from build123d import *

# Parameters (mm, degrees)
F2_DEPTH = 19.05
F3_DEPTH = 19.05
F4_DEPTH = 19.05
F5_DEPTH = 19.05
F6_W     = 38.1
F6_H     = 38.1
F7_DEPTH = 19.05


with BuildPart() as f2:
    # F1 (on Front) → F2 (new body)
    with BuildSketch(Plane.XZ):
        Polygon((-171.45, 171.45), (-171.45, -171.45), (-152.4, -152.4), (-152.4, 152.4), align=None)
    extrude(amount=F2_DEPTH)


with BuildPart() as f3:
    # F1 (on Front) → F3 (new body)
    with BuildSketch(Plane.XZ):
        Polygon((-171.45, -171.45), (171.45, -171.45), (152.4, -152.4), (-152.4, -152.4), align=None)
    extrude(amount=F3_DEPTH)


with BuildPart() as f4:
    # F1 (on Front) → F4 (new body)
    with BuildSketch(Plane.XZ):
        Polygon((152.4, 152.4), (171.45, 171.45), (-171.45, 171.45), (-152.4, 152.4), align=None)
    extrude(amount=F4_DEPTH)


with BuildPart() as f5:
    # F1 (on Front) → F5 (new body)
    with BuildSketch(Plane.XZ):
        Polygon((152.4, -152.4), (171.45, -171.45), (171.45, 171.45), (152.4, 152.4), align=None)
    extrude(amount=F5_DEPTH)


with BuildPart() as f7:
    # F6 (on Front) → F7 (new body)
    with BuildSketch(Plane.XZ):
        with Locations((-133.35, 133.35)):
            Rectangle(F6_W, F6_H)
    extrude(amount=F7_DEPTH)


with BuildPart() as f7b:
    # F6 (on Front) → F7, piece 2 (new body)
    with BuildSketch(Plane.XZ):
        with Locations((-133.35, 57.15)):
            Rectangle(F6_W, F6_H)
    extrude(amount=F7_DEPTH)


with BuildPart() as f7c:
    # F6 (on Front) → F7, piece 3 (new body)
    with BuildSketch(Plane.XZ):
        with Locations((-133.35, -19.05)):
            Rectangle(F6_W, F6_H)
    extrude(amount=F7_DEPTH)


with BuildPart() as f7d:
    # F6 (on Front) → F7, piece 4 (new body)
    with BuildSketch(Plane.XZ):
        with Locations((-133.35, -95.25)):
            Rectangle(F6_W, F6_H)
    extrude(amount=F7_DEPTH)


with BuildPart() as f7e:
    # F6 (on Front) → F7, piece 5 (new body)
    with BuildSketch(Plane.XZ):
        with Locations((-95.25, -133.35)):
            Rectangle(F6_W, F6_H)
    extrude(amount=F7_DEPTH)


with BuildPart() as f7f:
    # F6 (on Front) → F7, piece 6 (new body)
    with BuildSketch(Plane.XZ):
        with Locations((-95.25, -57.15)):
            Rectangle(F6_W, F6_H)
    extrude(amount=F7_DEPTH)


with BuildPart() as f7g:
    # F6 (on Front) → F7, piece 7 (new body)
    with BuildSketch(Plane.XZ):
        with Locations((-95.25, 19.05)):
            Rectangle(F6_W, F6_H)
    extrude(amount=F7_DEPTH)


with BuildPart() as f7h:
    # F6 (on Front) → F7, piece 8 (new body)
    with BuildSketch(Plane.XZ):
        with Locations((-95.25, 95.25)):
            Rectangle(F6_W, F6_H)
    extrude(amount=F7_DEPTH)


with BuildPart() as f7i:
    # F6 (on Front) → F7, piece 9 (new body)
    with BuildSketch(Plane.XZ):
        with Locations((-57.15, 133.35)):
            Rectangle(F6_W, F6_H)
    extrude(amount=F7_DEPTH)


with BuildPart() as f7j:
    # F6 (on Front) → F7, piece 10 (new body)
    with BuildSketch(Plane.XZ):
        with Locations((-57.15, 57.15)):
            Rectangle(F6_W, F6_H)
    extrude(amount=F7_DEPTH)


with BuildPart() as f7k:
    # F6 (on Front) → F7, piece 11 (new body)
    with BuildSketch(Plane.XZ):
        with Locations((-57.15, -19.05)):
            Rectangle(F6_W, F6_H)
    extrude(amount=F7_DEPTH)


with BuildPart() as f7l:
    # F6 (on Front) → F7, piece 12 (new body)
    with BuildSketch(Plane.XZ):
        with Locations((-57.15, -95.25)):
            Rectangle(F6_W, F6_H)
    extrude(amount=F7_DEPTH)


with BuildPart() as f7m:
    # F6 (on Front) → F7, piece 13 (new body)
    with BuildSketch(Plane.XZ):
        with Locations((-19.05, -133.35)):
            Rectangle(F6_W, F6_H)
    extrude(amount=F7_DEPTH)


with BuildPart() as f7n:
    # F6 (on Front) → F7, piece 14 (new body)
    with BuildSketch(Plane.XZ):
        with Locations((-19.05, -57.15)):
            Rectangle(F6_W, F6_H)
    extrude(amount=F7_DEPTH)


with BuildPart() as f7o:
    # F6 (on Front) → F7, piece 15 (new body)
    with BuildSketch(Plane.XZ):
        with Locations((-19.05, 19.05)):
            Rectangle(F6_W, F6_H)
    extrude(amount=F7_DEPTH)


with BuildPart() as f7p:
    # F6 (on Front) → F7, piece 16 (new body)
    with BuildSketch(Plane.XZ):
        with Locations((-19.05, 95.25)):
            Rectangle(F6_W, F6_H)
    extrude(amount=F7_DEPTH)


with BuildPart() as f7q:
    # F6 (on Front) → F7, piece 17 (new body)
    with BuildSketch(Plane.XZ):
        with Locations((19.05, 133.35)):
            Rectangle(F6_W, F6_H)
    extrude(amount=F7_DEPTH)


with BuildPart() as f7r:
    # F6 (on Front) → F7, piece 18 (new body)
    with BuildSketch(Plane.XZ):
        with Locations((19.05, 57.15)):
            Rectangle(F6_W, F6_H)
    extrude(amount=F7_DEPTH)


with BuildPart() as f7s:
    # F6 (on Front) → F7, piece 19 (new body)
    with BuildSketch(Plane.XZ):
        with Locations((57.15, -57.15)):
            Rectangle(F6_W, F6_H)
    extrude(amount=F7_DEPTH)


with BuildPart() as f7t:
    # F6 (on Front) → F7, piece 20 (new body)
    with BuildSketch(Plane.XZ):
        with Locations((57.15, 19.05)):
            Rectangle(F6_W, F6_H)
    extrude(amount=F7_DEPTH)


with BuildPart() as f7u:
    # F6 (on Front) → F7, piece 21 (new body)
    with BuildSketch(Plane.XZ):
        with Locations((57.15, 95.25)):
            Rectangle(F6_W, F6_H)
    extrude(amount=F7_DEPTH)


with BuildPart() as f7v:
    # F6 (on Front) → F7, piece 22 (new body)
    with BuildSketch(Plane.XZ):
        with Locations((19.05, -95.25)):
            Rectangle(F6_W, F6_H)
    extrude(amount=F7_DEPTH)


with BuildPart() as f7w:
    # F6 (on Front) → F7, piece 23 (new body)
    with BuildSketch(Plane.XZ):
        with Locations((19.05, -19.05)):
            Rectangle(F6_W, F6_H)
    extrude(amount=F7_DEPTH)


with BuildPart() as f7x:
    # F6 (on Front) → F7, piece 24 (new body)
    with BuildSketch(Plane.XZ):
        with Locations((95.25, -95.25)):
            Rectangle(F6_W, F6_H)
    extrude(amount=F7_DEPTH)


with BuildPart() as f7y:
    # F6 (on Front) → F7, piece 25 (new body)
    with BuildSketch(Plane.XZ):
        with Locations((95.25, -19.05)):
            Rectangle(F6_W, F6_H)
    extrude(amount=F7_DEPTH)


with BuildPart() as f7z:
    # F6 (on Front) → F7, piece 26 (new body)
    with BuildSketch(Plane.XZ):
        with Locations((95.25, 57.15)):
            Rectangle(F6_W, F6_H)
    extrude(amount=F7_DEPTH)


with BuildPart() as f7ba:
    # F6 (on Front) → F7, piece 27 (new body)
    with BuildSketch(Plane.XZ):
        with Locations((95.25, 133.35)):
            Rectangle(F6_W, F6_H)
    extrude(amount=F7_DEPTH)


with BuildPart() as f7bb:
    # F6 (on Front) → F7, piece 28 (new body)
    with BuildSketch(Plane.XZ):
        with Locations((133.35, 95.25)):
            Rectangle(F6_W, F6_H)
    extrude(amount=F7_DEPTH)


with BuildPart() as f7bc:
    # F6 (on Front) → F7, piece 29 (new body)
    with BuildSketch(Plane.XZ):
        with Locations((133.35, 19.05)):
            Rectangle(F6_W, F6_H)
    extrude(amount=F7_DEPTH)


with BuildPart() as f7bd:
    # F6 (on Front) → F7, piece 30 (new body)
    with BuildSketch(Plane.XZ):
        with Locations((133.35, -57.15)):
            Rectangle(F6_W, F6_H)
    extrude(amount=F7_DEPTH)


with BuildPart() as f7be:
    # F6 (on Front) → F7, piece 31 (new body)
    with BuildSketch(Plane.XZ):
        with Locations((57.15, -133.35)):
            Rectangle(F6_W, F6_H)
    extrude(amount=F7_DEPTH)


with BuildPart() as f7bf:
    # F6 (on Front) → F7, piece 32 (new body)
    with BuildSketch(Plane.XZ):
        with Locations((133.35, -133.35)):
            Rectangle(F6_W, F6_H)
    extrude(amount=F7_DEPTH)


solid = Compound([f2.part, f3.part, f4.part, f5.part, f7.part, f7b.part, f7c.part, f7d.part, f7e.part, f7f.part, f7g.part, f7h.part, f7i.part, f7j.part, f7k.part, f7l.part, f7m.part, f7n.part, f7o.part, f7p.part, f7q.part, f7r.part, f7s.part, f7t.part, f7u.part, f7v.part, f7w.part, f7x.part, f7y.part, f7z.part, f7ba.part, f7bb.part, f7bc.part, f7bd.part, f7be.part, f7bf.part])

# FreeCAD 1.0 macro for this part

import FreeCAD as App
import Part
import Sketcher
Q = App.Units.Quantity

doc = App.newDocument("Part")
body = doc.addObject("PartDesign::Body", "Body")

sketch1 = body.newObject("Sketcher::SketchObject", "Sketch")
sketch1.AttachmentSupport = (doc.getObject("XZ_Plane"), [""])
sketch1.MapMode = "FlatFace"
sketch1.addGeometry([
    Part.LineSegment(App.Vector(-171, 171, 0), App.Vector(-171, -171, 0)),
    Part.LineSegment(App.Vector(-171, -171, 0), App.Vector(-152, -152, 0)),
    Part.LineSegment(App.Vector(-152, -152, 0), App.Vector(-152, 152, 0)),
    Part.LineSegment(App.Vector(-152, 152, 0), App.Vector(-171, 171, 0)),
], False)
sketch1.addConstraint([
    Sketcher.Constraint("Coincident", 0, 2, 1, 1),
    Sketcher.Constraint("Coincident", 1, 2, 2, 1),
    Sketcher.Constraint("Coincident", 2, 2, 3, 1),
    Sketcher.Constraint("Coincident", 3, 2, 0, 1),
    Sketcher.Constraint("Vertical", 0),
    Sketcher.Constraint("Vertical", 2),
    Sketcher.Constraint("Perpendicular", 1, 3),
    Sketcher.Constraint("Equal", 1, 3),
    Sketcher.Constraint("DistanceY", 2, 1, 2, 2, Q("12 in")),
    Sketcher.Constraint("DistanceY", 0, 2, 0, 1, Q("13.5 in")),
    Sketcher.Constraint("DistanceX", 1, 2, -1, 1, Q("6 in")),
    Sketcher.Constraint("DistanceY", 1, 2, -1, 1, Q("6 in")),
])
pad1 = body.newObject("PartDesign::Pad", "Pad")
pad1.Profile = sketch1
pad1.Length = Q("0.75 in")
body2 = doc.addObject("PartDesign::Body", "Body001")

sketch2 = body2.newObject("Sketcher::SketchObject", "Sketch001")
sketch2.AttachmentSupport = (doc.getObject("XZ_Plane001"), [""])
sketch2.MapMode = "FlatFace"
sketch2.addGeometry([
    Part.LineSegment(App.Vector(-171, -171, 0), App.Vector(171, -171, 0)),
    Part.LineSegment(App.Vector(171, -171, 0), App.Vector(152, -152, 0)),
    Part.LineSegment(App.Vector(152, -152, 0), App.Vector(-152, -152, 0)),
    Part.LineSegment(App.Vector(-152, -152, 0), App.Vector(-171, -171, 0)),
], False)
sketch2.addConstraint([
    Sketcher.Constraint("Coincident", 0, 2, 1, 1),
    Sketcher.Constraint("Coincident", 1, 2, 2, 1),
    Sketcher.Constraint("Coincident", 2, 2, 3, 1),
    Sketcher.Constraint("Coincident", 3, 2, 0, 1),
    Sketcher.Constraint("Horizontal", 0),
    Sketcher.Constraint("Horizontal", 2),
    Sketcher.Constraint("Perpendicular", 1, 3),
    Sketcher.Constraint("Equal", 1, 3),
    Sketcher.Constraint("DistanceX", 2, 2, 2, 1, Q("12 in")),
    Sketcher.Constraint("DistanceX", 0, 1, 0, 2, Q("13.5 in")),
    Sketcher.Constraint("DistanceX", -1, 1, 1, 2, Q("6 in")),
    Sketcher.Constraint("DistanceY", 1, 2, -1, 1, Q("6 in")),
])
pad2 = body2.newObject("PartDesign::Pad", "Pad001")
pad2.Profile = sketch2
pad2.Length = Q("0.75 in")
body3 = doc.addObject("PartDesign::Body", "Body002")

sketch3 = body3.newObject("Sketcher::SketchObject", "Sketch002")
sketch3.AttachmentSupport = (doc.getObject("XZ_Plane002"), [""])
sketch3.MapMode = "FlatFace"
sketch3.addGeometry([
    Part.LineSegment(App.Vector(152, 152, 0), App.Vector(171, 171, 0)),
    Part.LineSegment(App.Vector(171, 171, 0), App.Vector(-171, 171, 0)),
    Part.LineSegment(App.Vector(-171, 171, 0), App.Vector(-152, 152, 0)),
    Part.LineSegment(App.Vector(-152, 152, 0), App.Vector(152, 152, 0)),
], False)
sketch3.addConstraint([
    Sketcher.Constraint("Coincident", 0, 2, 1, 1),
    Sketcher.Constraint("Coincident", 1, 2, 2, 1),
    Sketcher.Constraint("Coincident", 2, 2, 3, 1),
    Sketcher.Constraint("Coincident", 3, 2, 0, 1),
    Sketcher.Constraint("Horizontal", 1),
    Sketcher.Constraint("Horizontal", 3),
    Sketcher.Constraint("Perpendicular", 0, 2),
    Sketcher.Constraint("Equal", 0, 2),
    Sketcher.Constraint("DistanceX", 3, 1, 3, 2, Q("12 in")),
    Sketcher.Constraint("DistanceX", 1, 2, 1, 1, Q("13.5 in")),
    Sketcher.Constraint("DistanceX", 2, 2, -1, 1, Q("6 in")),
    Sketcher.Constraint("DistanceY", -1, 1, 2, 2, Q("6 in")),
])
pad3 = body3.newObject("PartDesign::Pad", "Pad002")
pad3.Profile = sketch3
pad3.Length = Q("0.75 in")
body4 = doc.addObject("PartDesign::Body", "Body003")

sketch4 = body4.newObject("Sketcher::SketchObject", "Sketch003")
sketch4.AttachmentSupport = (doc.getObject("XZ_Plane003"), [""])
sketch4.MapMode = "FlatFace"
sketch4.addGeometry([
    Part.LineSegment(App.Vector(152, -152, 0), App.Vector(171, -171, 0)),
    Part.LineSegment(App.Vector(171, -171, 0), App.Vector(171, 171, 0)),
    Part.LineSegment(App.Vector(171, 171, 0), App.Vector(152, 152, 0)),
    Part.LineSegment(App.Vector(152, 152, 0), App.Vector(152, -152, 0)),
], False)
sketch4.addConstraint([
    Sketcher.Constraint("Coincident", 0, 2, 1, 1),
    Sketcher.Constraint("Coincident", 1, 2, 2, 1),
    Sketcher.Constraint("Coincident", 2, 2, 3, 1),
    Sketcher.Constraint("Coincident", 3, 2, 0, 1),
    Sketcher.Constraint("Vertical", 1),
    Sketcher.Constraint("Vertical", 3),
    Sketcher.Constraint("Perpendicular", 0, 2),
    Sketcher.Constraint("Equal", 0, 2),
    Sketcher.Constraint("DistanceY", 3, 2, 3, 1, Q("12 in")),
    Sketcher.Constraint("DistanceY", 1, 1, 1, 2, Q("13.5 in")),
    Sketcher.Constraint("DistanceX", -1, 1, 2, 2, Q("6 in")),
    Sketcher.Constraint("DistanceY", -1, 1, 2, 2, Q("6 in")),
])
pad4 = body4.newObject("PartDesign::Pad", "Pad003")
pad4.Profile = sketch4
pad4.Length = Q("0.75 in")
body5 = doc.addObject("PartDesign::Body", "Body004")

sketch5 = body5.newObject("Sketcher::SketchObject", "Sketch004")
sketch5.AttachmentSupport = (doc.getObject("XZ_Plane004"), [""])
sketch5.MapMode = "FlatFace"
sketch5.addGeometry([
    Part.LineSegment(App.Vector(-152, 152, 0), App.Vector(-152, 114, 0)),
    Part.LineSegment(App.Vector(-152, 114, 0), App.Vector(-114, 114, 0)),
    Part.LineSegment(App.Vector(-114, 114, 0), App.Vector(-114, 152, 0)),
    Part.LineSegment(App.Vector(-114, 152, 0), App.Vector(-152, 152, 0)),
], False)
sketch5.addConstraint([
    Sketcher.Constraint("Coincident", 0, 2, 1, 1),
    Sketcher.Constraint("Coincident", 1, 2, 2, 1),
    Sketcher.Constraint("Coincident", 2, 2, 3, 1),
    Sketcher.Constraint("Coincident", 3, 2, 0, 1),
    Sketcher.Constraint("Vertical", 0),
    Sketcher.Constraint("Horizontal", 1),
    Sketcher.Constraint("Vertical", 2),
    Sketcher.Constraint("Horizontal", 3),
    Sketcher.Constraint("Equal", 3, 0),
    Sketcher.Constraint("DistanceX", 1, 1, 1, 2, Q("1.5 in")),
    Sketcher.Constraint("DistanceX", 0, 2, -1, 1, Q("6 in")),
    Sketcher.Constraint("DistanceY", -1, 1, 2, 2, Q("6 in")),
])
pad5 = body5.newObject("PartDesign::Pad", "Pad004")
pad5.Profile = sketch5
pad5.Length = Q("0.75 in")
body6 = doc.addObject("PartDesign::Body", "Body005")

sketch6 = body6.newObject("Sketcher::SketchObject", "Sketch005")
sketch6.AttachmentSupport = (doc.getObject("XZ_Plane005"), [""])
sketch6.MapMode = "FlatFace"
sketch6.addGeometry([
    Part.LineSegment(App.Vector(-152, 76, 0), App.Vector(-152, 38, 0)),
    Part.LineSegment(App.Vector(-152, 38, 0), App.Vector(-114, 38, 0)),
    Part.LineSegment(App.Vector(-114, 38, 0), App.Vector(-114, 76, 0)),
    Part.LineSegment(App.Vector(-114, 76, 0), App.Vector(-152, 76, 0)),
], False)
sketch6.addConstraint([
    Sketcher.Constraint("Coincident", 0, 2, 1, 1),
    Sketcher.Constraint("Coincident", 1, 2, 2, 1),
    Sketcher.Constraint("Coincident", 2, 2, 3, 1),
    Sketcher.Constraint("Coincident", 3, 2, 0, 1),
    Sketcher.Constraint("Vertical", 0),
    Sketcher.Constraint("Horizontal", 1),
    Sketcher.Constraint("Vertical", 2),
    Sketcher.Constraint("Horizontal", 3),
    Sketcher.Constraint("Equal", 3, 0),
    Sketcher.Constraint("DistanceX", 1, 1, 1, 2, Q("1.5 in")),
    Sketcher.Constraint("DistanceX", 0, 2, -1, 1, Q("6 in")),
    Sketcher.Constraint("DistanceY", -1, 1, 2, 2, Q("3 in")),
])
pad6 = body6.newObject("PartDesign::Pad", "Pad005")
pad6.Profile = sketch6
pad6.Length = Q("0.75 in")
body7 = doc.addObject("PartDesign::Body", "Body006")

sketch7 = body7.newObject("Sketcher::SketchObject", "Sketch006")
sketch7.AttachmentSupport = (doc.getObject("XZ_Plane006"), [""])
sketch7.MapMode = "FlatFace"
sketch7.addGeometry([
    Part.LineSegment(App.Vector(-152, 0, 0), App.Vector(-152, -38, 0)),
    Part.LineSegment(App.Vector(-152, -38, 0), App.Vector(-114, -38, 0)),
    Part.LineSegment(App.Vector(-114, -38, 0), App.Vector(-114, 0, 0)),
    Part.LineSegment(App.Vector(-114, 0, 0), App.Vector(-152, 0, 0)),
], False)
sketch7.addConstraint([
    Sketcher.Constraint("Coincident", 0, 2, 1, 1),
    Sketcher.Constraint("Coincident", 1, 2, 2, 1),
    Sketcher.Constraint("Coincident", 2, 2, 3, 1),
    Sketcher.Constraint("Coincident", 3, 2, 0, 1),
    Sketcher.Constraint("Vertical", 0),
    Sketcher.Constraint("Horizontal", 1),
    Sketcher.Constraint("Vertical", 2),
    Sketcher.Constraint("Horizontal", 3),
    Sketcher.Constraint("PointOnObject", 2, 2, -1),
    Sketcher.Constraint("Equal", 3, 0),
    Sketcher.Constraint("DistanceX", 1, 1, 1, 2, Q("1.5 in")),
    Sketcher.Constraint("DistanceX", 0, 2, -1, 1, Q("6 in")),
])
pad7 = body7.newObject("PartDesign::Pad", "Pad006")
pad7.Profile = sketch7
pad7.Length = Q("0.75 in")
body8 = doc.addObject("PartDesign::Body", "Body007")

sketch8 = body8.newObject("Sketcher::SketchObject", "Sketch007")
sketch8.AttachmentSupport = (doc.getObject("XZ_Plane007"), [""])
sketch8.MapMode = "FlatFace"
sketch8.addGeometry([
    Part.LineSegment(App.Vector(-152, -76, 0), App.Vector(-152, -114, 0)),
    Part.LineSegment(App.Vector(-152, -114, 0), App.Vector(-114, -114, 0)),
    Part.LineSegment(App.Vector(-114, -114, 0), App.Vector(-114, -76, 0)),
    Part.LineSegment(App.Vector(-114, -76, 0), App.Vector(-152, -76, 0)),
], False)
sketch8.addConstraint([
    Sketcher.Constraint("Coincident", 0, 2, 1, 1),
    Sketcher.Constraint("Coincident", 1, 2, 2, 1),
    Sketcher.Constraint("Coincident", 2, 2, 3, 1),
    Sketcher.Constraint("Coincident", 3, 2, 0, 1),
    Sketcher.Constraint("Vertical", 0),
    Sketcher.Constraint("Horizontal", 1),
    Sketcher.Constraint("Vertical", 2),
    Sketcher.Constraint("Horizontal", 3),
    Sketcher.Constraint("Equal", 3, 0),
    Sketcher.Constraint("DistanceX", 1, 1, 1, 2, Q("1.5 in")),
    Sketcher.Constraint("DistanceX", 0, 2, -1, 1, Q("6 in")),
    Sketcher.Constraint("DistanceY", 2, 2, -1, 1, Q("3 in")),
])
pad8 = body8.newObject("PartDesign::Pad", "Pad007")
pad8.Profile = sketch8
pad8.Length = Q("0.75 in")
body9 = doc.addObject("PartDesign::Body", "Body008")

sketch9 = body9.newObject("Sketcher::SketchObject", "Sketch008")
sketch9.AttachmentSupport = (doc.getObject("XZ_Plane008"), [""])
sketch9.MapMode = "FlatFace"
sketch9.addGeometry([
    Part.LineSegment(App.Vector(-114, -114, 0), App.Vector(-114, -152, 0)),
    Part.LineSegment(App.Vector(-114, -152, 0), App.Vector(-76, -152, 0)),
    Part.LineSegment(App.Vector(-76, -152, 0), App.Vector(-76, -114, 0)),
    Part.LineSegment(App.Vector(-76, -114, 0), App.Vector(-114, -114, 0)),
], False)
sketch9.addConstraint([
    Sketcher.Constraint("Coincident", 0, 2, 1, 1),
    Sketcher.Constraint("Coincident", 1, 2, 2, 1),
    Sketcher.Constraint("Coincident", 2, 2, 3, 1),
    Sketcher.Constraint("Coincident", 3, 2, 0, 1),
    Sketcher.Constraint("Vertical", 0),
    Sketcher.Constraint("Horizontal", 1),
    Sketcher.Constraint("Vertical", 2),
    Sketcher.Constraint("Horizontal", 3),
    Sketcher.Constraint("Equal", 3, 0),
    Sketcher.Constraint("DistanceX", 1, 1, 1, 2, Q("1.5 in")),
    Sketcher.Constraint("DistanceY", 0, 2, -1, 1, Q("6 in")),
    Sketcher.Constraint("DistanceX", 1, 2, -1, 1, Q("3 in")),
])
pad9 = body9.newObject("PartDesign::Pad", "Pad008")
pad9.Profile = sketch9
pad9.Length = Q("0.75 in")
body10 = doc.addObject("PartDesign::Body", "Body009")

sketch10 = body10.newObject("Sketcher::SketchObject", "Sketch009")
sketch10.AttachmentSupport = (doc.getObject("XZ_Plane009"), [""])
sketch10.MapMode = "FlatFace"
sketch10.addGeometry([
    Part.LineSegment(App.Vector(-114, -38, 0), App.Vector(-114, -76, 0)),
    Part.LineSegment(App.Vector(-114, -76, 0), App.Vector(-76, -76, 0)),
    Part.LineSegment(App.Vector(-76, -76, 0), App.Vector(-76, -38, 0)),
    Part.LineSegment(App.Vector(-76, -38, 0), App.Vector(-114, -38, 0)),
], False)
sketch10.addConstraint([
    Sketcher.Constraint("Coincident", 0, 2, 1, 1),
    Sketcher.Constraint("Coincident", 1, 2, 2, 1),
    Sketcher.Constraint("Coincident", 2, 2, 3, 1),
    Sketcher.Constraint("Coincident", 3, 2, 0, 1),
    Sketcher.Constraint("Vertical", 0),
    Sketcher.Constraint("Horizontal", 1),
    Sketcher.Constraint("Vertical", 2),
    Sketcher.Constraint("Horizontal", 3),
    Sketcher.Constraint("Equal", 3, 0),
    Sketcher.Constraint("DistanceX", 1, 1, 1, 2, Q("1.5 in")),
    Sketcher.Constraint("DistanceY", 0, 2, -1, 1, Q("3 in")),
    Sketcher.Constraint("DistanceX", 1, 2, -1, 1, Q("3 in")),
])
pad10 = body10.newObject("PartDesign::Pad", "Pad009")
pad10.Profile = sketch10
pad10.Length = Q("0.75 in")
body11 = doc.addObject("PartDesign::Body", "Body010")

sketch11 = body11.newObject("Sketcher::SketchObject", "Sketch010")
sketch11.AttachmentSupport = (doc.getObject("XZ_Plane010"), [""])
sketch11.MapMode = "FlatFace"
sketch11.addGeometry([
    Part.LineSegment(App.Vector(-114, 38, 0), App.Vector(-114, 0, 0)),
    Part.LineSegment(App.Vector(-114, 0, 0), App.Vector(-76, 0, 0)),
    Part.LineSegment(App.Vector(-76, 0, 0), App.Vector(-76, 38, 0)),
    Part.LineSegment(App.Vector(-76, 38, 0), App.Vector(-114, 38, 0)),
], False)
sketch11.addConstraint([
    Sketcher.Constraint("Coincident", 0, 2, 1, 1),
    Sketcher.Constraint("Coincident", 1, 2, 2, 1),
    Sketcher.Constraint("Coincident", 2, 2, 3, 1),
    Sketcher.Constraint("Coincident", 3, 2, 0, 1),
    Sketcher.Constraint("Vertical", 0),
    Sketcher.Constraint("Horizontal", 1),
    Sketcher.Constraint("Vertical", 2),
    Sketcher.Constraint("Horizontal", 3),
    Sketcher.Constraint("PointOnObject", 0, 2, -1),
    Sketcher.Constraint("Equal", 3, 0),
    Sketcher.Constraint("DistanceX", 1, 1, 1, 2, Q("1.5 in")),
    Sketcher.Constraint("DistanceX", 1, 2, -1, 1, Q("3 in")),
])
pad11 = body11.newObject("PartDesign::Pad", "Pad010")
pad11.Profile = sketch11
pad11.Length = Q("0.75 in")
body12 = doc.addObject("PartDesign::Body", "Body011")

sketch12 = body12.newObject("Sketcher::SketchObject", "Sketch011")
sketch12.AttachmentSupport = (doc.getObject("XZ_Plane011"), [""])
sketch12.MapMode = "FlatFace"
sketch12.addGeometry([
    Part.LineSegment(App.Vector(-114, 114, 0), App.Vector(-114, 76, 0)),
    Part.LineSegment(App.Vector(-114, 76, 0), App.Vector(-76, 76, 0)),
    Part.LineSegment(App.Vector(-76, 76, 0), App.Vector(-76, 114, 0)),
    Part.LineSegment(App.Vector(-76, 114, 0), App.Vector(-114, 114, 0)),
], False)
sketch12.addConstraint([
    Sketcher.Constraint("Coincident", 0, 2, 1, 1),
    Sketcher.Constraint("Coincident", 1, 2, 2, 1),
    Sketcher.Constraint("Coincident", 2, 2, 3, 1),
    Sketcher.Constraint("Coincident", 3, 2, 0, 1),
    Sketcher.Constraint("Vertical", 0),
    Sketcher.Constraint("Horizontal", 1),
    Sketcher.Constraint("Vertical", 2),
    Sketcher.Constraint("Horizontal", 3),
    Sketcher.Constraint("Equal", 3, 0),
    Sketcher.Constraint("DistanceX", 1, 1, 1, 2, Q("1.5 in")),
    Sketcher.Constraint("DistanceY", -1, 1, 0, 2, Q("3 in")),
    Sketcher.Constraint("DistanceX", 1, 2, -1, 1, Q("3 in")),
])
pad12 = body12.newObject("PartDesign::Pad", "Pad011")
pad12.Profile = sketch12
pad12.Length = Q("0.75 in")
body13 = doc.addObject("PartDesign::Body", "Body012")

sketch13 = body13.newObject("Sketcher::SketchObject", "Sketch012")
sketch13.AttachmentSupport = (doc.getObject("XZ_Plane012"), [""])
sketch13.MapMode = "FlatFace"
sketch13.addGeometry([
    Part.LineSegment(App.Vector(-76, 152, 0), App.Vector(-76, 114, 0)),
    Part.LineSegment(App.Vector(-76, 114, 0), App.Vector(-38, 114, 0)),
    Part.LineSegment(App.Vector(-38, 114, 0), App.Vector(-38, 152, 0)),
    Part.LineSegment(App.Vector(-38, 152, 0), App.Vector(-76, 152, 0)),
], False)
sketch13.addConstraint([
    Sketcher.Constraint("Coincident", 0, 2, 1, 1),
    Sketcher.Constraint("Coincident", 1, 2, 2, 1),
    Sketcher.Constraint("Coincident", 2, 2, 3, 1),
    Sketcher.Constraint("Coincident", 3, 2, 0, 1),
    Sketcher.Constraint("Vertical", 0),
    Sketcher.Constraint("Horizontal", 1),
    Sketcher.Constraint("Vertical", 2),
    Sketcher.Constraint("Horizontal", 3),
    Sketcher.Constraint("Equal", 3, 0),
    Sketcher.Constraint("DistanceX", 1, 1, 1, 2, Q("1.5 in")),
    Sketcher.Constraint("DistanceX", 0, 2, -1, 1, Q("3 in")),
    Sketcher.Constraint("DistanceY", -1, 1, 2, 2, Q("6 in")),
])
pad13 = body13.newObject("PartDesign::Pad", "Pad012")
pad13.Profile = sketch13
pad13.Length = Q("0.75 in")
body14 = doc.addObject("PartDesign::Body", "Body013")

sketch14 = body14.newObject("Sketcher::SketchObject", "Sketch013")
sketch14.AttachmentSupport = (doc.getObject("XZ_Plane013"), [""])
sketch14.MapMode = "FlatFace"
sketch14.addGeometry([
    Part.LineSegment(App.Vector(-76, 76, 0), App.Vector(-76, 38, 0)),
    Part.LineSegment(App.Vector(-76, 38, 0), App.Vector(-38, 38, 0)),
    Part.LineSegment(App.Vector(-38, 38, 0), App.Vector(-38, 76, 0)),
    Part.LineSegment(App.Vector(-38, 76, 0), App.Vector(-76, 76, 0)),
], False)
sketch14.addConstraint([
    Sketcher.Constraint("Coincident", 0, 2, 1, 1),
    Sketcher.Constraint("Coincident", 1, 2, 2, 1),
    Sketcher.Constraint("Coincident", 2, 2, 3, 1),
    Sketcher.Constraint("Coincident", 3, 2, 0, 1),
    Sketcher.Constraint("Vertical", 0),
    Sketcher.Constraint("Horizontal", 1),
    Sketcher.Constraint("Vertical", 2),
    Sketcher.Constraint("Horizontal", 3),
    Sketcher.Constraint("Equal", 3, 0),
    Sketcher.Constraint("DistanceX", 1, 1, 1, 2, Q("1.5 in")),
    Sketcher.Constraint("DistanceX", 0, 2, -1, 1, Q("3 in")),
    Sketcher.Constraint("DistanceY", -1, 1, 2, 2, Q("3 in")),
])
pad14 = body14.newObject("PartDesign::Pad", "Pad013")
pad14.Profile = sketch14
pad14.Length = Q("0.75 in")
body15 = doc.addObject("PartDesign::Body", "Body014")

sketch15 = body15.newObject("Sketcher::SketchObject", "Sketch014")
sketch15.AttachmentSupport = (doc.getObject("XZ_Plane014"), [""])
sketch15.MapMode = "FlatFace"
sketch15.addGeometry([
    Part.LineSegment(App.Vector(-76, 0, 0), App.Vector(-76, -38, 0)),
    Part.LineSegment(App.Vector(-76, -38, 0), App.Vector(-38, -38, 0)),
    Part.LineSegment(App.Vector(-38, -38, 0), App.Vector(-38, 0, 0)),
    Part.LineSegment(App.Vector(-38, 0, 0), App.Vector(-76, 0, 0)),
], False)
sketch15.addConstraint([
    Sketcher.Constraint("Coincident", 0, 2, 1, 1),
    Sketcher.Constraint("Coincident", 1, 2, 2, 1),
    Sketcher.Constraint("Coincident", 2, 2, 3, 1),
    Sketcher.Constraint("Coincident", 3, 2, 0, 1),
    Sketcher.Constraint("Vertical", 0),
    Sketcher.Constraint("Horizontal", 1),
    Sketcher.Constraint("Vertical", 2),
    Sketcher.Constraint("Horizontal", 3),
    Sketcher.Constraint("PointOnObject", 2, 2, -1),
    Sketcher.Constraint("Equal", 3, 0),
    Sketcher.Constraint("DistanceX", 1, 1, 1, 2, Q("1.5 in")),
    Sketcher.Constraint("DistanceX", 0, 2, -1, 1, Q("3 in")),
])
pad15 = body15.newObject("PartDesign::Pad", "Pad014")
pad15.Profile = sketch15
pad15.Length = Q("0.75 in")
body16 = doc.addObject("PartDesign::Body", "Body015")

sketch16 = body16.newObject("Sketcher::SketchObject", "Sketch015")
sketch16.AttachmentSupport = (doc.getObject("XZ_Plane015"), [""])
sketch16.MapMode = "FlatFace"
sketch16.addGeometry([
    Part.LineSegment(App.Vector(-76, -76, 0), App.Vector(-76, -114, 0)),
    Part.LineSegment(App.Vector(-76, -114, 0), App.Vector(-38, -114, 0)),
    Part.LineSegment(App.Vector(-38, -114, 0), App.Vector(-38, -76, 0)),
    Part.LineSegment(App.Vector(-38, -76, 0), App.Vector(-76, -76, 0)),
], False)
sketch16.addConstraint([
    Sketcher.Constraint("Coincident", 0, 2, 1, 1),
    Sketcher.Constraint("Coincident", 1, 2, 2, 1),
    Sketcher.Constraint("Coincident", 2, 2, 3, 1),
    Sketcher.Constraint("Coincident", 3, 2, 0, 1),
    Sketcher.Constraint("Vertical", 0),
    Sketcher.Constraint("Horizontal", 1),
    Sketcher.Constraint("Vertical", 2),
    Sketcher.Constraint("Horizontal", 3),
    Sketcher.Constraint("Equal", 3, 0),
    Sketcher.Constraint("DistanceX", 1, 1, 1, 2, Q("1.5 in")),
    Sketcher.Constraint("DistanceX", 0, 2, -1, 1, Q("3 in")),
    Sketcher.Constraint("DistanceY", 2, 2, -1, 1, Q("3 in")),
])
pad16 = body16.newObject("PartDesign::Pad", "Pad015")
pad16.Profile = sketch16
pad16.Length = Q("0.75 in")
body17 = doc.addObject("PartDesign::Body", "Body016")

sketch17 = body17.newObject("Sketcher::SketchObject", "Sketch016")
sketch17.AttachmentSupport = (doc.getObject("XZ_Plane016"), [""])
sketch17.MapMode = "FlatFace"
sketch17.addGeometry([
    Part.LineSegment(App.Vector(-38, -114, 0), App.Vector(-38, -152, 0)),
    Part.LineSegment(App.Vector(-38, -152, 0), App.Vector(0, -152, 0)),
    Part.LineSegment(App.Vector(0, -152, 0), App.Vector(0, -114, 0)),
    Part.LineSegment(App.Vector(0, -114, 0), App.Vector(-38, -114, 0)),
], False)
sketch17.addConstraint([
    Sketcher.Constraint("Coincident", 0, 2, 1, 1),
    Sketcher.Constraint("Coincident", 1, 2, 2, 1),
    Sketcher.Constraint("Coincident", 2, 2, 3, 1),
    Sketcher.Constraint("Coincident", 3, 2, 0, 1),
    Sketcher.Constraint("Vertical", 0),
    Sketcher.Constraint("Horizontal", 1),
    Sketcher.Constraint("Vertical", 2),
    Sketcher.Constraint("Horizontal", 3),
    Sketcher.Constraint("PointOnObject", 1, 2, -2),
    Sketcher.Constraint("Equal", 3, 0),
    Sketcher.Constraint("DistanceX", 1, 1, 1, 2, Q("1.5 in")),
    Sketcher.Constraint("DistanceY", 0, 2, -1, 1, Q("6 in")),
])
pad17 = body17.newObject("PartDesign::Pad", "Pad016")
pad17.Profile = sketch17
pad17.Length = Q("0.75 in")
body18 = doc.addObject("PartDesign::Body", "Body017")

sketch18 = body18.newObject("Sketcher::SketchObject", "Sketch017")
sketch18.AttachmentSupport = (doc.getObject("XZ_Plane017"), [""])
sketch18.MapMode = "FlatFace"
sketch18.addGeometry([
    Part.LineSegment(App.Vector(-38, -38, 0), App.Vector(-38, -76, 0)),
    Part.LineSegment(App.Vector(-38, -76, 0), App.Vector(0, -76, 0)),
    Part.LineSegment(App.Vector(0, -76, 0), App.Vector(0, -38, 0)),
    Part.LineSegment(App.Vector(0, -38, 0), App.Vector(-38, -38, 0)),
], False)
sketch18.addConstraint([
    Sketcher.Constraint("Coincident", 0, 2, 1, 1),
    Sketcher.Constraint("Coincident", 1, 2, 2, 1),
    Sketcher.Constraint("Coincident", 2, 2, 3, 1),
    Sketcher.Constraint("Coincident", 3, 2, 0, 1),
    Sketcher.Constraint("Vertical", 0),
    Sketcher.Constraint("Horizontal", 1),
    Sketcher.Constraint("Vertical", 2),
    Sketcher.Constraint("Horizontal", 3),
    Sketcher.Constraint("PointOnObject", 1, 2, -2),
    Sketcher.Constraint("Equal", 3, 0),
    Sketcher.Constraint("DistanceX", 1, 1, 1, 2, Q("1.5 in")),
    Sketcher.Constraint("DistanceY", 0, 2, -1, 1, Q("3 in")),
])
pad18 = body18.newObject("PartDesign::Pad", "Pad017")
pad18.Profile = sketch18
pad18.Length = Q("0.75 in")
body19 = doc.addObject("PartDesign::Body", "Body018")

sketch19 = body19.newObject("Sketcher::SketchObject", "Sketch018")
sketch19.AttachmentSupport = (doc.getObject("XZ_Plane018"), [""])
sketch19.MapMode = "FlatFace"
sketch19.addGeometry([
    Part.LineSegment(App.Vector(-38, 38, 0), App.Vector(-38, 0, 0)),
    Part.LineSegment(App.Vector(-38, 0, 0), App.Vector(0, 0, 0)),
    Part.LineSegment(App.Vector(0, 0, 0), App.Vector(0, 38, 0)),
    Part.LineSegment(App.Vector(0, 38, 0), App.Vector(-38, 38, 0)),
], False)
sketch19.addConstraint([
    Sketcher.Constraint("Coincident", 0, 2, 1, 1),
    Sketcher.Constraint("Coincident", 1, 2, 2, 1),
    Sketcher.Constraint("Coincident", 2, 2, 3, 1),
    Sketcher.Constraint("Coincident", 3, 2, 0, 1),
    Sketcher.Constraint("Vertical", 0),
    Sketcher.Constraint("Horizontal", 1),
    Sketcher.Constraint("Vertical", 2),
    Sketcher.Constraint("Horizontal", 3),
    Sketcher.Constraint("Coincident", 1, 2, -1, 1),
    Sketcher.Constraint("Equal", 3, 0),
    Sketcher.Constraint("DistanceX", 1, 1, 1, 2, Q("1.5 in")),
])
pad19 = body19.newObject("PartDesign::Pad", "Pad018")
pad19.Profile = sketch19
pad19.Length = Q("0.75 in")
body20 = doc.addObject("PartDesign::Body", "Body019")

sketch20 = body20.newObject("Sketcher::SketchObject", "Sketch019")
sketch20.AttachmentSupport = (doc.getObject("XZ_Plane019"), [""])
sketch20.MapMode = "FlatFace"
sketch20.addGeometry([
    Part.LineSegment(App.Vector(-38, 114, 0), App.Vector(-38, 76, 0)),
    Part.LineSegment(App.Vector(-38, 76, 0), App.Vector(0, 76, 0)),
    Part.LineSegment(App.Vector(0, 76, 0), App.Vector(0, 114, 0)),
    Part.LineSegment(App.Vector(0, 114, 0), App.Vector(-38, 114, 0)),
], False)
sketch20.addConstraint([
    Sketcher.Constraint("Coincident", 0, 2, 1, 1),
    Sketcher.Constraint("Coincident", 1, 2, 2, 1),
    Sketcher.Constraint("Coincident", 2, 2, 3, 1),
    Sketcher.Constraint("Coincident", 3, 2, 0, 1),
    Sketcher.Constraint("Vertical", 0),
    Sketcher.Constraint("Horizontal", 1),
    Sketcher.Constraint("Vertical", 2),
    Sketcher.Constraint("Horizontal", 3),
    Sketcher.Constraint("PointOnObject", 1, 2, -2),
    Sketcher.Constraint("Equal", 3, 0),
    Sketcher.Constraint("DistanceX", 1, 1, 1, 2, Q("1.5 in")),
    Sketcher.Constraint("DistanceY", -1, 1, 0, 2, Q("3 in")),
])
pad20 = body20.newObject("PartDesign::Pad", "Pad019")
pad20.Profile = sketch20
pad20.Length = Q("0.75 in")
body21 = doc.addObject("PartDesign::Body", "Body020")

sketch21 = body21.newObject("Sketcher::SketchObject", "Sketch020")
sketch21.AttachmentSupport = (doc.getObject("XZ_Plane020"), [""])
sketch21.MapMode = "FlatFace"
sketch21.addGeometry([
    Part.LineSegment(App.Vector(0, 152, 0), App.Vector(0, 114, 0)),
    Part.LineSegment(App.Vector(0, 114, 0), App.Vector(38, 114, 0)),
    Part.LineSegment(App.Vector(38, 114, 0), App.Vector(38, 152, 0)),
    Part.LineSegment(App.Vector(38, 152, 0), App.Vector(0, 152, 0)),
], False)
sketch21.addConstraint([
    Sketcher.Constraint("Coincident", 0, 2, 1, 1),
    Sketcher.Constraint("Coincident", 1, 2, 2, 1),
    Sketcher.Constraint("Coincident", 2, 2, 3, 1),
    Sketcher.Constraint("Coincident", 3, 2, 0, 1),
    Sketcher.Constraint("Vertical", 0),
    Sketcher.Constraint("Horizontal", 1),
    Sketcher.Constraint("Vertical", 2),
    Sketcher.Constraint("Horizontal", 3),
    Sketcher.Constraint("PointOnObject", 0, 2, -2),
    Sketcher.Constraint("Equal", 3, 0),
    Sketcher.Constraint("DistanceX", 1, 1, 1, 2, Q("1.5 in")),
    Sketcher.Constraint("DistanceY", -1, 1, 2, 2, Q("6 in")),
])
pad21 = body21.newObject("PartDesign::Pad", "Pad020")
pad21.Profile = sketch21
pad21.Length = Q("0.75 in")
body22 = doc.addObject("PartDesign::Body", "Body021")

sketch22 = body22.newObject("Sketcher::SketchObject", "Sketch021")
sketch22.AttachmentSupport = (doc.getObject("XZ_Plane021"), [""])
sketch22.MapMode = "FlatFace"
sketch22.addGeometry([
    Part.LineSegment(App.Vector(0, 76, 0), App.Vector(0, 38, 0)),
    Part.LineSegment(App.Vector(0, 38, 0), App.Vector(38, 38, 0)),
    Part.LineSegment(App.Vector(38, 38, 0), App.Vector(38, 76, 0)),
    Part.LineSegment(App.Vector(38, 76, 0), App.Vector(0, 76, 0)),
], False)
sketch22.addConstraint([
    Sketcher.Constraint("Coincident", 0, 2, 1, 1),
    Sketcher.Constraint("Coincident", 1, 2, 2, 1),
    Sketcher.Constraint("Coincident", 2, 2, 3, 1),
    Sketcher.Constraint("Coincident", 3, 2, 0, 1),
    Sketcher.Constraint("Vertical", 0),
    Sketcher.Constraint("Horizontal", 1),
    Sketcher.Constraint("Vertical", 2),
    Sketcher.Constraint("Horizontal", 3),
    Sketcher.Constraint("PointOnObject", 0, 2, -2),
    Sketcher.Constraint("Equal", 3, 0),
    Sketcher.Constraint("DistanceX", 1, 1, 1, 2, Q("1.5 in")),
    Sketcher.Constraint("DistanceY", -1, 1, 2, 2, Q("3 in")),
])
pad22 = body22.newObject("PartDesign::Pad", "Pad021")
pad22.Profile = sketch22
pad22.Length = Q("0.75 in")
body23 = doc.addObject("PartDesign::Body", "Body022")

sketch23 = body23.newObject("Sketcher::SketchObject", "Sketch022")
sketch23.AttachmentSupport = (doc.getObject("XZ_Plane022"), [""])
sketch23.MapMode = "FlatFace"
sketch23.addGeometry([
    Part.LineSegment(App.Vector(38, -38, 0), App.Vector(38, -76, 0)),
    Part.LineSegment(App.Vector(38, -76, 0), App.Vector(76, -76, 0)),
    Part.LineSegment(App.Vector(76, -76, 0), App.Vector(76, -38, 0)),
    Part.LineSegment(App.Vector(76, -38, 0), App.Vector(38, -38, 0)),
], False)
sketch23.addConstraint([
    Sketcher.Constraint("Coincident", 0, 2, 1, 1),
    Sketcher.Constraint("Coincident", 1, 2, 2, 1),
    Sketcher.Constraint("Coincident", 2, 2, 3, 1),
    Sketcher.Constraint("Coincident", 3, 2, 0, 1),
    Sketcher.Constraint("Vertical", 0),
    Sketcher.Constraint("Horizontal", 1),
    Sketcher.Constraint("Vertical", 2),
    Sketcher.Constraint("Horizontal", 3),
    Sketcher.Constraint("Equal", 3, 0),
    Sketcher.Constraint("DistanceX", 1, 1, 1, 2, Q("1.5 in")),
    Sketcher.Constraint("DistanceY", 0, 2, -1, 1, Q("3 in")),
    Sketcher.Constraint("DistanceX", -1, 1, 1, 2, Q("3 in")),
])
pad23 = body23.newObject("PartDesign::Pad", "Pad022")
pad23.Profile = sketch23
pad23.Length = Q("0.75 in")
body24 = doc.addObject("PartDesign::Body", "Body023")

sketch24 = body24.newObject("Sketcher::SketchObject", "Sketch023")
sketch24.AttachmentSupport = (doc.getObject("XZ_Plane023"), [""])
sketch24.MapMode = "FlatFace"
sketch24.addGeometry([
    Part.LineSegment(App.Vector(38, 38, 0), App.Vector(38, 0, 0)),
    Part.LineSegment(App.Vector(38, 0, 0), App.Vector(76, 0, 0)),
    Part.LineSegment(App.Vector(76, 0, 0), App.Vector(76, 38, 0)),
    Part.LineSegment(App.Vector(76, 38, 0), App.Vector(38, 38, 0)),
], False)
sketch24.addConstraint([
    Sketcher.Constraint("Coincident", 0, 2, 1, 1),
    Sketcher.Constraint("Coincident", 1, 2, 2, 1),
    Sketcher.Constraint("Coincident", 2, 2, 3, 1),
    Sketcher.Constraint("Coincident", 3, 2, 0, 1),
    Sketcher.Constraint("Vertical", 0),
    Sketcher.Constraint("Horizontal", 1),
    Sketcher.Constraint("Vertical", 2),
    Sketcher.Constraint("Horizontal", 3),
    Sketcher.Constraint("PointOnObject", 0, 2, -1),
    Sketcher.Constraint("Equal", 3, 0),
    Sketcher.Constraint("DistanceX", 1, 1, 1, 2, Q("1.5 in")),
    Sketcher.Constraint("DistanceX", -1, 1, 1, 2, Q("3 in")),
])
pad24 = body24.newObject("PartDesign::Pad", "Pad023")
pad24.Profile = sketch24
pad24.Length = Q("0.75 in")
body25 = doc.addObject("PartDesign::Body", "Body024")

sketch25 = body25.newObject("Sketcher::SketchObject", "Sketch024")
sketch25.AttachmentSupport = (doc.getObject("XZ_Plane024"), [""])
sketch25.MapMode = "FlatFace"
sketch25.addGeometry([
    Part.LineSegment(App.Vector(38, 114, 0), App.Vector(38, 76, 0)),
    Part.LineSegment(App.Vector(38, 76, 0), App.Vector(76, 76, 0)),
    Part.LineSegment(App.Vector(76, 76, 0), App.Vector(76, 114, 0)),
    Part.LineSegment(App.Vector(76, 114, 0), App.Vector(38, 114, 0)),
], False)
sketch25.addConstraint([
    Sketcher.Constraint("Coincident", 0, 2, 1, 1),
    Sketcher.Constraint("Coincident", 1, 2, 2, 1),
    Sketcher.Constraint("Coincident", 2, 2, 3, 1),
    Sketcher.Constraint("Coincident", 3, 2, 0, 1),
    Sketcher.Constraint("Vertical", 0),
    Sketcher.Constraint("Horizontal", 1),
    Sketcher.Constraint("Vertical", 2),
    Sketcher.Constraint("Horizontal", 3),
    Sketcher.Constraint("Equal", 3, 0),
    Sketcher.Constraint("DistanceX", 1, 1, 1, 2, Q("1.5 in")),
    Sketcher.Constraint("DistanceY", -1, 1, 0, 2, Q("3 in")),
    Sketcher.Constraint("DistanceX", -1, 1, 1, 2, Q("3 in")),
])
pad25 = body25.newObject("PartDesign::Pad", "Pad024")
pad25.Profile = sketch25
pad25.Length = Q("0.75 in")
body26 = doc.addObject("PartDesign::Body", "Body025")

sketch26 = body26.newObject("Sketcher::SketchObject", "Sketch025")
sketch26.AttachmentSupport = (doc.getObject("XZ_Plane025"), [""])
sketch26.MapMode = "FlatFace"
sketch26.addGeometry([
    Part.LineSegment(App.Vector(0, -76, 0), App.Vector(0, -114, 0)),
    Part.LineSegment(App.Vector(0, -114, 0), App.Vector(38, -114, 0)),
    Part.LineSegment(App.Vector(38, -114, 0), App.Vector(38, -76, 0)),
    Part.LineSegment(App.Vector(38, -76, 0), App.Vector(0, -76, 0)),
], False)
sketch26.addConstraint([
    Sketcher.Constraint("Coincident", 0, 2, 1, 1),
    Sketcher.Constraint("Coincident", 1, 2, 2, 1),
    Sketcher.Constraint("Coincident", 2, 2, 3, 1),
    Sketcher.Constraint("Coincident", 3, 2, 0, 1),
    Sketcher.Constraint("Vertical", 0),
    Sketcher.Constraint("Horizontal", 1),
    Sketcher.Constraint("Vertical", 2),
    Sketcher.Constraint("Horizontal", 3),
    Sketcher.Constraint("PointOnObject", 0, 2, -2),
    Sketcher.Constraint("Equal", 3, 0),
    Sketcher.Constraint("DistanceX", 1, 1, 1, 2, Q("1.5 in")),
    Sketcher.Constraint("DistanceY", 2, 2, -1, 1, Q("3 in")),
])
pad26 = body26.newObject("PartDesign::Pad", "Pad025")
pad26.Profile = sketch26
pad26.Length = Q("0.75 in")
body27 = doc.addObject("PartDesign::Body", "Body026")

sketch27 = body27.newObject("Sketcher::SketchObject", "Sketch026")
sketch27.AttachmentSupport = (doc.getObject("XZ_Plane026"), [""])
sketch27.MapMode = "FlatFace"
sketch27.addGeometry([
    Part.LineSegment(App.Vector(0, 0, 0), App.Vector(0, -38, 0)),
    Part.LineSegment(App.Vector(0, -38, 0), App.Vector(38, -38, 0)),
    Part.LineSegment(App.Vector(38, -38, 0), App.Vector(38, 0, 0)),
    Part.LineSegment(App.Vector(38, 0, 0), App.Vector(0, 0, 0)),
], False)
sketch27.addConstraint([
    Sketcher.Constraint("Coincident", 0, 2, 1, 1),
    Sketcher.Constraint("Coincident", 1, 2, 2, 1),
    Sketcher.Constraint("Coincident", 2, 2, 3, 1),
    Sketcher.Constraint("Coincident", 3, 2, 0, 1),
    Sketcher.Constraint("Vertical", 0),
    Sketcher.Constraint("Horizontal", 1),
    Sketcher.Constraint("Vertical", 2),
    Sketcher.Constraint("Horizontal", 3),
    Sketcher.Constraint("Coincident", 3, 2, -1, 1),
    Sketcher.Constraint("Equal", 3, 0),
    Sketcher.Constraint("DistanceX", 1, 1, 1, 2, Q("1.5 in")),
])
pad27 = body27.newObject("PartDesign::Pad", "Pad026")
pad27.Profile = sketch27
pad27.Length = Q("0.75 in")
body28 = doc.addObject("PartDesign::Body", "Body027")

sketch28 = body28.newObject("Sketcher::SketchObject", "Sketch027")
sketch28.AttachmentSupport = (doc.getObject("XZ_Plane027"), [""])
sketch28.MapMode = "FlatFace"
sketch28.addGeometry([
    Part.LineSegment(App.Vector(76, -76, 0), App.Vector(76, -114, 0)),
    Part.LineSegment(App.Vector(76, -114, 0), App.Vector(114, -114, 0)),
    Part.LineSegment(App.Vector(114, -114, 0), App.Vector(114, -76, 0)),
    Part.LineSegment(App.Vector(114, -76, 0), App.Vector(76, -76, 0)),
], False)
sketch28.addConstraint([
    Sketcher.Constraint("Coincident", 0, 2, 1, 1),
    Sketcher.Constraint("Coincident", 1, 2, 2, 1),
    Sketcher.Constraint("Coincident", 2, 2, 3, 1),
    Sketcher.Constraint("Coincident", 3, 2, 0, 1),
    Sketcher.Constraint("Vertical", 0),
    Sketcher.Constraint("Horizontal", 1),
    Sketcher.Constraint("Vertical", 2),
    Sketcher.Constraint("Horizontal", 3),
    Sketcher.Constraint("Equal", 3, 0),
    Sketcher.Constraint("DistanceX", 1, 1, 1, 2, Q("1.5 in")),
    Sketcher.Constraint("DistanceX", -1, 1, 0, 2, Q("3 in")),
    Sketcher.Constraint("DistanceY", 2, 2, -1, 1, Q("3 in")),
])
pad28 = body28.newObject("PartDesign::Pad", "Pad027")
pad28.Profile = sketch28
pad28.Length = Q("0.75 in")
body29 = doc.addObject("PartDesign::Body", "Body028")

sketch29 = body29.newObject("Sketcher::SketchObject", "Sketch028")
sketch29.AttachmentSupport = (doc.getObject("XZ_Plane028"), [""])
sketch29.MapMode = "FlatFace"
sketch29.addGeometry([
    Part.LineSegment(App.Vector(76, 0, 0), App.Vector(76, -38, 0)),
    Part.LineSegment(App.Vector(76, -38, 0), App.Vector(114, -38, 0)),
    Part.LineSegment(App.Vector(114, -38, 0), App.Vector(114, 0, 0)),
    Part.LineSegment(App.Vector(114, 0, 0), App.Vector(76, 0, 0)),
], False)
sketch29.addConstraint([
    Sketcher.Constraint("Coincident", 0, 2, 1, 1),
    Sketcher.Constraint("Coincident", 1, 2, 2, 1),
    Sketcher.Constraint("Coincident", 2, 2, 3, 1),
    Sketcher.Constraint("Coincident", 3, 2, 0, 1),
    Sketcher.Constraint("Vertical", 0),
    Sketcher.Constraint("Horizontal", 1),
    Sketcher.Constraint("Vertical", 2),
    Sketcher.Constraint("Horizontal", 3),
    Sketcher.Constraint("PointOnObject", 2, 2, -1),
    Sketcher.Constraint("Equal", 3, 0),
    Sketcher.Constraint("DistanceX", 1, 1, 1, 2, Q("1.5 in")),
    Sketcher.Constraint("DistanceX", -1, 1, 0, 2, Q("3 in")),
])
pad29 = body29.newObject("PartDesign::Pad", "Pad028")
pad29.Profile = sketch29
pad29.Length = Q("0.75 in")
body30 = doc.addObject("PartDesign::Body", "Body029")

sketch30 = body30.newObject("Sketcher::SketchObject", "Sketch029")
sketch30.AttachmentSupport = (doc.getObject("XZ_Plane029"), [""])
sketch30.MapMode = "FlatFace"
sketch30.addGeometry([
    Part.LineSegment(App.Vector(76, 76, 0), App.Vector(76, 38, 0)),
    Part.LineSegment(App.Vector(76, 38, 0), App.Vector(114, 38, 0)),
    Part.LineSegment(App.Vector(114, 38, 0), App.Vector(114, 76, 0)),
    Part.LineSegment(App.Vector(114, 76, 0), App.Vector(76, 76, 0)),
], False)
sketch30.addConstraint([
    Sketcher.Constraint("Coincident", 0, 2, 1, 1),
    Sketcher.Constraint("Coincident", 1, 2, 2, 1),
    Sketcher.Constraint("Coincident", 2, 2, 3, 1),
    Sketcher.Constraint("Coincident", 3, 2, 0, 1),
    Sketcher.Constraint("Vertical", 0),
    Sketcher.Constraint("Horizontal", 1),
    Sketcher.Constraint("Vertical", 2),
    Sketcher.Constraint("Horizontal", 3),
    Sketcher.Constraint("Equal", 3, 0),
    Sketcher.Constraint("DistanceX", 1, 1, 1, 2, Q("1.5 in")),
    Sketcher.Constraint("DistanceX", -1, 1, 0, 2, Q("3 in")),
    Sketcher.Constraint("DistanceY", -1, 1, 2, 2, Q("3 in")),
])
pad30 = body30.newObject("PartDesign::Pad", "Pad029")
pad30.Profile = sketch30
pad30.Length = Q("0.75 in")
body31 = doc.addObject("PartDesign::Body", "Body030")

sketch31 = body31.newObject("Sketcher::SketchObject", "Sketch030")
sketch31.AttachmentSupport = (doc.getObject("XZ_Plane030"), [""])
sketch31.MapMode = "FlatFace"
sketch31.addGeometry([
    Part.LineSegment(App.Vector(76, 152, 0), App.Vector(76, 114, 0)),
    Part.LineSegment(App.Vector(76, 114, 0), App.Vector(114, 114, 0)),
    Part.LineSegment(App.Vector(114, 114, 0), App.Vector(114, 152, 0)),
    Part.LineSegment(App.Vector(114, 152, 0), App.Vector(76, 152, 0)),
], False)
sketch31.addConstraint([
    Sketcher.Constraint("Coincident", 0, 2, 1, 1),
    Sketcher.Constraint("Coincident", 1, 2, 2, 1),
    Sketcher.Constraint("Coincident", 2, 2, 3, 1),
    Sketcher.Constraint("Coincident", 3, 2, 0, 1),
    Sketcher.Constraint("Vertical", 0),
    Sketcher.Constraint("Horizontal", 1),
    Sketcher.Constraint("Vertical", 2),
    Sketcher.Constraint("Horizontal", 3),
    Sketcher.Constraint("Equal", 3, 0),
    Sketcher.Constraint("DistanceX", 1, 1, 1, 2, Q("1.5 in")),
    Sketcher.Constraint("DistanceX", -1, 1, 0, 2, Q("3 in")),
    Sketcher.Constraint("DistanceY", -1, 1, 2, 2, Q("6 in")),
])
pad31 = body31.newObject("PartDesign::Pad", "Pad030")
pad31.Profile = sketch31
pad31.Length = Q("0.75 in")
body32 = doc.addObject("PartDesign::Body", "Body031")

sketch32 = body32.newObject("Sketcher::SketchObject", "Sketch031")
sketch32.AttachmentSupport = (doc.getObject("XZ_Plane031"), [""])
sketch32.MapMode = "FlatFace"
sketch32.addGeometry([
    Part.LineSegment(App.Vector(114, 114, 0), App.Vector(114, 76, 0)),
    Part.LineSegment(App.Vector(114, 76, 0), App.Vector(152, 76, 0)),
    Part.LineSegment(App.Vector(152, 76, 0), App.Vector(152, 114, 0)),
    Part.LineSegment(App.Vector(152, 114, 0), App.Vector(114, 114, 0)),
], False)
sketch32.addConstraint([
    Sketcher.Constraint("Coincident", 0, 2, 1, 1),
    Sketcher.Constraint("Coincident", 1, 2, 2, 1),
    Sketcher.Constraint("Coincident", 2, 2, 3, 1),
    Sketcher.Constraint("Coincident", 3, 2, 0, 1),
    Sketcher.Constraint("Vertical", 0),
    Sketcher.Constraint("Horizontal", 1),
    Sketcher.Constraint("Vertical", 2),
    Sketcher.Constraint("Horizontal", 3),
    Sketcher.Constraint("Equal", 3, 0),
    Sketcher.Constraint("DistanceX", 1, 1, 1, 2, Q("1.5 in")),
    Sketcher.Constraint("DistanceY", -1, 1, 0, 2, Q("3 in")),
    Sketcher.Constraint("DistanceX", -1, 1, 1, 2, Q("6 in")),
])
pad32 = body32.newObject("PartDesign::Pad", "Pad031")
pad32.Profile = sketch32
pad32.Length = Q("0.75 in")
body33 = doc.addObject("PartDesign::Body", "Body032")

sketch33 = body33.newObject("Sketcher::SketchObject", "Sketch032")
sketch33.AttachmentSupport = (doc.getObject("XZ_Plane032"), [""])
sketch33.MapMode = "FlatFace"
sketch33.addGeometry([
    Part.LineSegment(App.Vector(114, 38, 0), App.Vector(114, 0, 0)),
    Part.LineSegment(App.Vector(114, 0, 0), App.Vector(152, 0, 0)),
    Part.LineSegment(App.Vector(152, 0, 0), App.Vector(152, 38, 0)),
    Part.LineSegment(App.Vector(152, 38, 0), App.Vector(114, 38, 0)),
], False)
sketch33.addConstraint([
    Sketcher.Constraint("Coincident", 0, 2, 1, 1),
    Sketcher.Constraint("Coincident", 1, 2, 2, 1),
    Sketcher.Constraint("Coincident", 2, 2, 3, 1),
    Sketcher.Constraint("Coincident", 3, 2, 0, 1),
    Sketcher.Constraint("Vertical", 0),
    Sketcher.Constraint("Horizontal", 1),
    Sketcher.Constraint("Vertical", 2),
    Sketcher.Constraint("Horizontal", 3),
    Sketcher.Constraint("PointOnObject", 0, 2, -1),
    Sketcher.Constraint("Equal", 3, 0),
    Sketcher.Constraint("DistanceX", 1, 1, 1, 2, Q("1.5 in")),
    Sketcher.Constraint("DistanceX", -1, 1, 1, 2, Q("6 in")),
])
pad33 = body33.newObject("PartDesign::Pad", "Pad032")
pad33.Profile = sketch33
pad33.Length = Q("0.75 in")
body34 = doc.addObject("PartDesign::Body", "Body033")

sketch34 = body34.newObject("Sketcher::SketchObject", "Sketch033")
sketch34.AttachmentSupport = (doc.getObject("XZ_Plane033"), [""])
sketch34.MapMode = "FlatFace"
sketch34.addGeometry([
    Part.LineSegment(App.Vector(114, -38, 0), App.Vector(114, -76, 0)),
    Part.LineSegment(App.Vector(114, -76, 0), App.Vector(152, -76, 0)),
    Part.LineSegment(App.Vector(152, -76, 0), App.Vector(152, -38, 0)),
    Part.LineSegment(App.Vector(152, -38, 0), App.Vector(114, -38, 0)),
], False)
sketch34.addConstraint([
    Sketcher.Constraint("Coincident", 0, 2, 1, 1),
    Sketcher.Constraint("Coincident", 1, 2, 2, 1),
    Sketcher.Constraint("Coincident", 2, 2, 3, 1),
    Sketcher.Constraint("Coincident", 3, 2, 0, 1),
    Sketcher.Constraint("Vertical", 0),
    Sketcher.Constraint("Horizontal", 1),
    Sketcher.Constraint("Vertical", 2),
    Sketcher.Constraint("Horizontal", 3),
    Sketcher.Constraint("Equal", 3, 0),
    Sketcher.Constraint("DistanceX", 1, 1, 1, 2, Q("1.5 in")),
    Sketcher.Constraint("DistanceY", 0, 2, -1, 1, Q("3 in")),
    Sketcher.Constraint("DistanceX", -1, 1, 1, 2, Q("6 in")),
])
pad34 = body34.newObject("PartDesign::Pad", "Pad033")
pad34.Profile = sketch34
pad34.Length = Q("0.75 in")
body35 = doc.addObject("PartDesign::Body", "Body034")

sketch35 = body35.newObject("Sketcher::SketchObject", "Sketch034")
sketch35.AttachmentSupport = (doc.getObject("XZ_Plane034"), [""])
sketch35.MapMode = "FlatFace"
sketch35.addGeometry([
    Part.LineSegment(App.Vector(38, -114, 0), App.Vector(38, -152, 0)),
    Part.LineSegment(App.Vector(38, -152, 0), App.Vector(76, -152, 0)),
    Part.LineSegment(App.Vector(76, -152, 0), App.Vector(76, -114, 0)),
    Part.LineSegment(App.Vector(76, -114, 0), App.Vector(38, -114, 0)),
], False)
sketch35.addConstraint([
    Sketcher.Constraint("Coincident", 0, 2, 1, 1),
    Sketcher.Constraint("Coincident", 1, 2, 2, 1),
    Sketcher.Constraint("Coincident", 2, 2, 3, 1),
    Sketcher.Constraint("Coincident", 3, 2, 0, 1),
    Sketcher.Constraint("Vertical", 0),
    Sketcher.Constraint("Horizontal", 1),
    Sketcher.Constraint("Vertical", 2),
    Sketcher.Constraint("Horizontal", 3),
    Sketcher.Constraint("Equal", 3, 0),
    Sketcher.Constraint("DistanceX", 1, 1, 1, 2, Q("1.5 in")),
    Sketcher.Constraint("DistanceY", 0, 2, -1, 1, Q("6 in")),
    Sketcher.Constraint("DistanceX", -1, 1, 1, 2, Q("3 in")),
])
pad35 = body35.newObject("PartDesign::Pad", "Pad034")
pad35.Profile = sketch35
pad35.Length = Q("0.75 in")
body36 = doc.addObject("PartDesign::Body", "Body035")

sketch36 = body36.newObject("Sketcher::SketchObject", "Sketch035")
sketch36.AttachmentSupport = (doc.getObject("XZ_Plane035"), [""])
sketch36.MapMode = "FlatFace"
sketch36.addGeometry([
    Part.LineSegment(App.Vector(114, -114, 0), App.Vector(114, -152, 0)),
    Part.LineSegment(App.Vector(114, -152, 0), App.Vector(152, -152, 0)),
    Part.LineSegment(App.Vector(152, -152, 0), App.Vector(152, -114, 0)),
    Part.LineSegment(App.Vector(152, -114, 0), App.Vector(114, -114, 0)),
], False)
sketch36.addConstraint([
    Sketcher.Constraint("Coincident", 0, 2, 1, 1),
    Sketcher.Constraint("Coincident", 1, 2, 2, 1),
    Sketcher.Constraint("Coincident", 2, 2, 3, 1),
    Sketcher.Constraint("Coincident", 3, 2, 0, 1),
    Sketcher.Constraint("Vertical", 0),
    Sketcher.Constraint("Horizontal", 1),
    Sketcher.Constraint("Vertical", 2),
    Sketcher.Constraint("Horizontal", 3),
    Sketcher.Constraint("Equal", 3, 0),
    Sketcher.Constraint("DistanceX", 1, 1, 1, 2, Q("1.5 in")),
    Sketcher.Constraint("DistanceY", 0, 2, -1, 1, Q("6 in")),
    Sketcher.Constraint("DistanceX", -1, 1, 1, 2, Q("6 in")),
])
pad36 = body36.newObject("PartDesign::Pad", "Pad035")
pad36.Profile = sketch36
pad36.Length = Q("0.75 in")

doc.recompute()
